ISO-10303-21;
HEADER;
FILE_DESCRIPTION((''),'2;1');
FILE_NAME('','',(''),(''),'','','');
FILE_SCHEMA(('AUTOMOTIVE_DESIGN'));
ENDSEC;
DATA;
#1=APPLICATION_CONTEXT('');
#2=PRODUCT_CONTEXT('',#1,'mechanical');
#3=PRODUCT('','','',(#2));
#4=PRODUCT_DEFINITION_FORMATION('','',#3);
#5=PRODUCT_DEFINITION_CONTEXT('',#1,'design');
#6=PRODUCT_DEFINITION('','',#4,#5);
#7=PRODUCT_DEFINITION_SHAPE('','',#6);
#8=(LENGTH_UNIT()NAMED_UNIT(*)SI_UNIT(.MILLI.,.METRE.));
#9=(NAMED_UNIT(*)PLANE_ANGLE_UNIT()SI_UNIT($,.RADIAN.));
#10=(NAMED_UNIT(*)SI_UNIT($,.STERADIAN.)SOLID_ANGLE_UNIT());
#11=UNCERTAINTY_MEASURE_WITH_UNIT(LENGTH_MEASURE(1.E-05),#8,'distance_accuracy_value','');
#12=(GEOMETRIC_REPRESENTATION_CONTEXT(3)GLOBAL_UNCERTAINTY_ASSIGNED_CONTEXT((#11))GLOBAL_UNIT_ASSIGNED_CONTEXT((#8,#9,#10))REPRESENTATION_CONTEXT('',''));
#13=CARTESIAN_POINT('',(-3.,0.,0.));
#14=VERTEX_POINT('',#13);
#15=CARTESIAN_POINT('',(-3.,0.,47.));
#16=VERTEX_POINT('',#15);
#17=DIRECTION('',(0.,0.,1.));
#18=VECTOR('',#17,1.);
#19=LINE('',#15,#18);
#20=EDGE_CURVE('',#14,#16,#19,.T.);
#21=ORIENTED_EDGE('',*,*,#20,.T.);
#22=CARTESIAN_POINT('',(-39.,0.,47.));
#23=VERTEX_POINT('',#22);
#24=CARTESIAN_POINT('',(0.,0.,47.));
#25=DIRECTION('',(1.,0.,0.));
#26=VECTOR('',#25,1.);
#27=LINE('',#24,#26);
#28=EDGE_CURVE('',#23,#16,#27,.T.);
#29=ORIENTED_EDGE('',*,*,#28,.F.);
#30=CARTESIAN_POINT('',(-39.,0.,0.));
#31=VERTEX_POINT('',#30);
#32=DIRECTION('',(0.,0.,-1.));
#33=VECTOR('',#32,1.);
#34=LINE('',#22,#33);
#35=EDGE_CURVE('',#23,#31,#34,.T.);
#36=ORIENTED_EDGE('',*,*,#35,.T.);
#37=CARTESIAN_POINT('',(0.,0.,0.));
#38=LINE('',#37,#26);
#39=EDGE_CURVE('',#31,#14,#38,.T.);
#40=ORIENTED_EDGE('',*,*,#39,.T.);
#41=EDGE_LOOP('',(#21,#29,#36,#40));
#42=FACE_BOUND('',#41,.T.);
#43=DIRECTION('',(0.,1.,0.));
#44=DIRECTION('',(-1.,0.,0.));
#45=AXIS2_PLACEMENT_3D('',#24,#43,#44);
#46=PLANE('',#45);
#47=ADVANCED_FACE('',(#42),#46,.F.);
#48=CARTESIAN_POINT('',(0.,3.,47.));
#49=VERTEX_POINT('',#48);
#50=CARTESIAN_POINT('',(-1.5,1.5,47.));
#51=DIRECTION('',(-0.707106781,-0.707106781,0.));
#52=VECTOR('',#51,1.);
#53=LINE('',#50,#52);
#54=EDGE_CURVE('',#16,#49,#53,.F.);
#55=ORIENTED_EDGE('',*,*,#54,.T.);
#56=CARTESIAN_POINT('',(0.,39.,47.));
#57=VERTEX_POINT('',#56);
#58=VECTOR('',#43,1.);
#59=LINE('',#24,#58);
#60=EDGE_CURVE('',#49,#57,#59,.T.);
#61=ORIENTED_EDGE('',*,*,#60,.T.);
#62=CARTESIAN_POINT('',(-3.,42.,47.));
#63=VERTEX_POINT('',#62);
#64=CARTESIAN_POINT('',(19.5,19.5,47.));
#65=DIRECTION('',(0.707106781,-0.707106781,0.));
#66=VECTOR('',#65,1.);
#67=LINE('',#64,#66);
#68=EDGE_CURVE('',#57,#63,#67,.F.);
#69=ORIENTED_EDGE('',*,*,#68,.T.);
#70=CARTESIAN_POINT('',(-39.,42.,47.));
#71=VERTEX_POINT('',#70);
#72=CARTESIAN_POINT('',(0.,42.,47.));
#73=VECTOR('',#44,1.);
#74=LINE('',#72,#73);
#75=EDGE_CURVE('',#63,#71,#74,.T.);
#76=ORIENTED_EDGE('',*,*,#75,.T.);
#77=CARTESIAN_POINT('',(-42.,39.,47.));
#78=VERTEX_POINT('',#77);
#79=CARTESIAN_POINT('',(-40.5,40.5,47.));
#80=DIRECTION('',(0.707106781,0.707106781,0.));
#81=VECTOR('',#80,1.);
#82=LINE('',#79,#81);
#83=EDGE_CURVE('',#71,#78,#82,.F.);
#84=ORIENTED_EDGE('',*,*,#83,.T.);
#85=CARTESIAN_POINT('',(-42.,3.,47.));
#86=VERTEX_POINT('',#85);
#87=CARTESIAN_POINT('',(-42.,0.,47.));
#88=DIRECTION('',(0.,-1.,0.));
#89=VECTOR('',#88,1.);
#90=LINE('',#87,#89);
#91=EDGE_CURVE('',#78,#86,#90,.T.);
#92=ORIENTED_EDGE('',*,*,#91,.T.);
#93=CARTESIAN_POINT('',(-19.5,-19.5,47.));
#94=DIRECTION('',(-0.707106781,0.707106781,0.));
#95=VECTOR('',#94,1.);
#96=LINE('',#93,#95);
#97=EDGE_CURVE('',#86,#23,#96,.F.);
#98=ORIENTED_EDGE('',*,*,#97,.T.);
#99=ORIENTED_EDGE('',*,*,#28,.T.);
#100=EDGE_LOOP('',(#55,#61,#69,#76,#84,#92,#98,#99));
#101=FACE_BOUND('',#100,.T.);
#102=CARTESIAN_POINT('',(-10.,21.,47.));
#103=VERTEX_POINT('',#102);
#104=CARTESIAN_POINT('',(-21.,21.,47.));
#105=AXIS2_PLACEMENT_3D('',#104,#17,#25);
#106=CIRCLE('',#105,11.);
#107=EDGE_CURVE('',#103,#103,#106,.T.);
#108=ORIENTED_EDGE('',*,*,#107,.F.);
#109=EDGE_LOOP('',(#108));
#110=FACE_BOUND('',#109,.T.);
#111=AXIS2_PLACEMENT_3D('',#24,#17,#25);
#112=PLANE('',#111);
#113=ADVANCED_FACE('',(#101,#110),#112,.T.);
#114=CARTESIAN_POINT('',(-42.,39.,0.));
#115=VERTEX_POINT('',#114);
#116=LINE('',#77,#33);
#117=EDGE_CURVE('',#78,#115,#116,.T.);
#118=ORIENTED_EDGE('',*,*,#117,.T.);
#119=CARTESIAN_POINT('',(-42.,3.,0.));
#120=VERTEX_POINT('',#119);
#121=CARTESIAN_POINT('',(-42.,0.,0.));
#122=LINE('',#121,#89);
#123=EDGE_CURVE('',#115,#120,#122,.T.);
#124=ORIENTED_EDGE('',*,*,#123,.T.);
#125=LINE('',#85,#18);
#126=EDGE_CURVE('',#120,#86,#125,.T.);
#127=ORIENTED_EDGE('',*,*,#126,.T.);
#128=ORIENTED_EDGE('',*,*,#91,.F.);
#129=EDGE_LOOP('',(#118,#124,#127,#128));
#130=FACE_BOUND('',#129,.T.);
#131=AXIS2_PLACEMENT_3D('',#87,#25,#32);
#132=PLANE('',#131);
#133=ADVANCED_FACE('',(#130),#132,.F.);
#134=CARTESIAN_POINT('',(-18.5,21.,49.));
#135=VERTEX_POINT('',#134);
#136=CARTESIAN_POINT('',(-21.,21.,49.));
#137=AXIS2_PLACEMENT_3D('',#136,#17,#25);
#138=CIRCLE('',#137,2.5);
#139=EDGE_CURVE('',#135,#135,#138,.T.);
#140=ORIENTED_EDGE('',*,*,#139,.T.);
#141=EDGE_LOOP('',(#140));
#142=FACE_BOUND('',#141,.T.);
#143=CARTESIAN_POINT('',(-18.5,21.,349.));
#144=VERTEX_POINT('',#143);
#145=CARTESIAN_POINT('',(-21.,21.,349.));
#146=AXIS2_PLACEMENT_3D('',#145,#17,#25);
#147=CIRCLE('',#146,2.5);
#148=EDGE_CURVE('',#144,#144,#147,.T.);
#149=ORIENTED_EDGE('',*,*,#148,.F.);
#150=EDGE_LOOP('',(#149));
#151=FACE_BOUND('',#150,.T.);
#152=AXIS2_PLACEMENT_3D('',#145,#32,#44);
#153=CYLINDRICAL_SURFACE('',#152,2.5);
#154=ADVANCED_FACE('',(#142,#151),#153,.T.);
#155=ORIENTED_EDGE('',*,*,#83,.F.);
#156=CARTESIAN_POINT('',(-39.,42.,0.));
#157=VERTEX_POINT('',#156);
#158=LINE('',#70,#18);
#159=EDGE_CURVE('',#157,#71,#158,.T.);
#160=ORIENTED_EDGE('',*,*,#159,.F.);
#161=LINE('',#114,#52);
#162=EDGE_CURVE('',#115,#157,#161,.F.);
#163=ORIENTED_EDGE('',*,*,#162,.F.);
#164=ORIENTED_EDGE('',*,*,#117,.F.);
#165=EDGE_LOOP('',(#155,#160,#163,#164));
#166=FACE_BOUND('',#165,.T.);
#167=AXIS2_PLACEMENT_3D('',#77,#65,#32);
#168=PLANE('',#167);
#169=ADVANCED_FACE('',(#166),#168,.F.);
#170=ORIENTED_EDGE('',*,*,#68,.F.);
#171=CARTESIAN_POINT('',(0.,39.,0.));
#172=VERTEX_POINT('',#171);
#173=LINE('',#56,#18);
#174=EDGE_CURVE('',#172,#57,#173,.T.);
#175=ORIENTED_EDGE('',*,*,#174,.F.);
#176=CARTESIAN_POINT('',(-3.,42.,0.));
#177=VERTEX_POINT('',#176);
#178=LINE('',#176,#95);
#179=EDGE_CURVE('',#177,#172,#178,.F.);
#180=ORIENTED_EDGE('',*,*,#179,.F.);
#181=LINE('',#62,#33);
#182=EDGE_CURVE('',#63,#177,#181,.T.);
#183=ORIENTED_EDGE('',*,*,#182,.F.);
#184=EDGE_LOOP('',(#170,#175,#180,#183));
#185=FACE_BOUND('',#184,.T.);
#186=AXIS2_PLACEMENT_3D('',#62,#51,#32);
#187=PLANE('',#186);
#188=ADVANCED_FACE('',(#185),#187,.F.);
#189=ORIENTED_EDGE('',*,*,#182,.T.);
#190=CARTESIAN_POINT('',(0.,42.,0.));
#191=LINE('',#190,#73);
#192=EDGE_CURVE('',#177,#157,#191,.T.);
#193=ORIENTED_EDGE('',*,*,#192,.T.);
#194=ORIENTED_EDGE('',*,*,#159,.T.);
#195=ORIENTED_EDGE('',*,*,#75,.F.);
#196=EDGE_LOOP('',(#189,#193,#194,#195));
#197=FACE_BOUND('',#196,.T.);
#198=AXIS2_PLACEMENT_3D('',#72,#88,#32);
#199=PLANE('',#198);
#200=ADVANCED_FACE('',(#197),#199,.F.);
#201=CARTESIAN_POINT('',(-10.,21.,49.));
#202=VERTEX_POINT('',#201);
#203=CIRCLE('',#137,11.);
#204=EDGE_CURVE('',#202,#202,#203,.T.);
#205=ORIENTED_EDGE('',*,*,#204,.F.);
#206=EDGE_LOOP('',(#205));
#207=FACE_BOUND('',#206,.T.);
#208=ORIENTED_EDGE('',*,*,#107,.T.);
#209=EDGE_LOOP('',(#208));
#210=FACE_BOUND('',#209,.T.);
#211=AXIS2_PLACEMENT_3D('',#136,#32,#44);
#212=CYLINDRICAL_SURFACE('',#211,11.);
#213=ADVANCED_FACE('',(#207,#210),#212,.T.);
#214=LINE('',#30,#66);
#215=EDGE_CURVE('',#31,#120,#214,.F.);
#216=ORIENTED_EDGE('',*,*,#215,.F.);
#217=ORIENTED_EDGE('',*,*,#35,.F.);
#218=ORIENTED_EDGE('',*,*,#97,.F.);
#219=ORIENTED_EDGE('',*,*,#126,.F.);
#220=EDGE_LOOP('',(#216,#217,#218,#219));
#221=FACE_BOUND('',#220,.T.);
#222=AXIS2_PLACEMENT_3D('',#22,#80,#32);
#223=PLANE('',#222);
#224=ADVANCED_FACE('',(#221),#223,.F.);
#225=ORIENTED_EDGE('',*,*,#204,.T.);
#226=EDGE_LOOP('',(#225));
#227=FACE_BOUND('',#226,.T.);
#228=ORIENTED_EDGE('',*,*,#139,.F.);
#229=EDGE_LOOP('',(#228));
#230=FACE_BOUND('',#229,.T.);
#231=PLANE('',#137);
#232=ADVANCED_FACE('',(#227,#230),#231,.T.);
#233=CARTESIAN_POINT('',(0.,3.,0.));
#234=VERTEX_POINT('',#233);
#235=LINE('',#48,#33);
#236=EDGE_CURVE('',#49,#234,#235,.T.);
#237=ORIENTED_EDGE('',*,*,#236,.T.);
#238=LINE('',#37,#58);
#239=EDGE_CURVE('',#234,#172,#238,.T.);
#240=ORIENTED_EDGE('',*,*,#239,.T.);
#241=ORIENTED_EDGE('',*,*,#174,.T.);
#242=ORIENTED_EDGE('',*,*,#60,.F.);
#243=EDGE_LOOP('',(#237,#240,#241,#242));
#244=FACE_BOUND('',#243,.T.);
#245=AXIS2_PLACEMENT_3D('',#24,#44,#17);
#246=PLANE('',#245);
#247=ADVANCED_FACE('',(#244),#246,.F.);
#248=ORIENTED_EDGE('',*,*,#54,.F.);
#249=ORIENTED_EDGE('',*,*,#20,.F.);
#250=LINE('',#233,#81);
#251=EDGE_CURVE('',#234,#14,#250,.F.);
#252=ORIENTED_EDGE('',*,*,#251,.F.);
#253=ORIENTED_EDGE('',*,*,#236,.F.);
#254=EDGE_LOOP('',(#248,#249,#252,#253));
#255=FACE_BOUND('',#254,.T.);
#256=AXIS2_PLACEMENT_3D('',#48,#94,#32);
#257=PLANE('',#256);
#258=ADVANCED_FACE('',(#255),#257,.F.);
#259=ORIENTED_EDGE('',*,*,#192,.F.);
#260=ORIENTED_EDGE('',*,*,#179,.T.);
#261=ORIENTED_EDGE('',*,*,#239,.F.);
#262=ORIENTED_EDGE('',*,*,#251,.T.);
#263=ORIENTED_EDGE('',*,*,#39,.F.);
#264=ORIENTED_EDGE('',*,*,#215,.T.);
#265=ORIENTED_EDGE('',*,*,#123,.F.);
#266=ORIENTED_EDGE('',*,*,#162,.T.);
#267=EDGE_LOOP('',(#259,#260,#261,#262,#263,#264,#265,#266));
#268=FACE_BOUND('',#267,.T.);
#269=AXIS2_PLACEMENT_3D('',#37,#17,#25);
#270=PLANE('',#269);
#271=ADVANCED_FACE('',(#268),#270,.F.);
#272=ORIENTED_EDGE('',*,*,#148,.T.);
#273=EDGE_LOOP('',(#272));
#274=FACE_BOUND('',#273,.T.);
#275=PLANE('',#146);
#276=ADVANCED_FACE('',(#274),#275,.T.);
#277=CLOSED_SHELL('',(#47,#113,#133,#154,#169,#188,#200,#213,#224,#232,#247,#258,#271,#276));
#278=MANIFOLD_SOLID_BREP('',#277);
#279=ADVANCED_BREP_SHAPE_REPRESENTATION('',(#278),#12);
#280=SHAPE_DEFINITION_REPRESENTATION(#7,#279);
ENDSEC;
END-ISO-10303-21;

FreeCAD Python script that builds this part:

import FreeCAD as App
import Part
import Sketcher


def edges_at(feature, points):
    """Names of the edges that pass closest to the given points."""
    edges = feature.Shape.Edges
    near = lambda p: min(range(len(edges)), key=lambda i: edges[i].distToShape(Part.Vertex(*p))[0])
    return sorted({f"Edge{near(p) + 1}" for p in points})


def add_polygon(sketch, points):
    """Adds a closed chain of lines whose ends are joined by coincident constraints."""
    first, n = sketch.GeometryCount, len(points)
    for a, b in zip(points, points[1:] + points[:1]):
        sketch.addGeometry(Part.LineSegment(App.Vector(*a, 0), App.Vector(*b, 0)), False)
    for i in range(n):
        sketch.addConstraint(Sketcher.Constraint("Coincident", first + i, 2, first + (i + 1) % n, 1))

doc = App.newDocument("Part")
body = doc.addObject("PartDesign::Body", "Body")

# Sketch on XY plane
sketch1 = doc.addObject("Sketcher::SketchObject", "Sketch")
body.addObject(sketch1)
sketch1.AttachmentSupport = (doc.XY_Plane, [""])
sketch1.MapMode = "FlatFace"
add_polygon(sketch1, [(-42, 42), (-42, 0), (0, 0), (0, 42)])  # lines 0-3
sketch1.addConstraint([
    Sketcher.Constraint("Vertical", 0),
    Sketcher.Constraint("Horizontal", 1),
    Sketcher.Constraint("Vertical", 2),
    Sketcher.Constraint("Horizontal", 3),
    Sketcher.Constraint("Coincident", 1, 2, -1, 1),
    Sketcher.Constraint("Equal", 3, 0),
    Sketcher.Constraint("DistanceX", 1, 1, 1, 2, 42.0),
])
pad1 = doc.addObject("PartDesign::Pad", "Pad")
body.addObject(pad1)
pad1.Profile = sketch1
pad1.Length = 47
doc.recompute()

chamfer = doc.addObject("PartDesign::Chamfer", "Chamfer")
body.addObject(chamfer)
chamfer.Base = (pad1, edges_at(pad1, [
    (0, 0, 23.5),
    (-42, 0, 23.5),
    (-42, 42, 23.5),
    (0, 42, 23.5),
]))
chamfer.Size = 3

# Sketch on XY plane
sketch2 = doc.addObject("Sketcher::SketchObject", "Sketch001")
body.addObject(sketch2)
sketch2.AttachmentSupport = (doc.XY_Plane, [""])
sketch2.MapMode = "FlatFace"
sketch2.AttachmentOffset = App.Placement(App.Vector(0, 0, 47), App.Rotation())
sketch2.addGeometry(Part.Circle(App.Vector(-21, 21, 0), App.Vector(0, 0, 1), 11), False)
sketch2.addConstraint([
    Sketcher.Constraint("Diameter", 0, 22.0),
    Sketcher.Constraint("DistanceX", 0, 3, -1, 1, 21.0),
    Sketcher.Constraint("DistanceY", -1, 1, 0, 3, 21.0),
])
pad2 = doc.addObject("PartDesign::Pad", "Pad001")
body.addObject(pad2)
pad2.Profile = sketch2
pad2.Length = 2

# Sketch on XY plane
sketch3 = doc.addObject("Sketcher::SketchObject", "Sketch002")
body.addObject(sketch3)
sketch3.AttachmentSupport = (doc.XY_Plane, [""])
sketch3.MapMode = "FlatFace"
sketch3.AttachmentOffset = App.Placement(App.Vector(0, 0, 49), App.Rotation())
sketch3.addGeometry(Part.Circle(App.Vector(-21, 21, 0), App.Vector(0, 0, 1), 2.5), False)
sketch3.addConstraint([
    Sketcher.Constraint("Diameter", 0, 5.0),
    Sketcher.Constraint("DistanceX", 0, 3, -1, 1, 21.0),
    Sketcher.Constraint("DistanceY", -1, 1, 0, 3, 21.0),
])
pad3 = doc.addObject("PartDesign::Pad", "Pad002")
body.addObject(pad3)
pad3.Profile = sketch3
pad3.Length = 300

doc.recompute()
